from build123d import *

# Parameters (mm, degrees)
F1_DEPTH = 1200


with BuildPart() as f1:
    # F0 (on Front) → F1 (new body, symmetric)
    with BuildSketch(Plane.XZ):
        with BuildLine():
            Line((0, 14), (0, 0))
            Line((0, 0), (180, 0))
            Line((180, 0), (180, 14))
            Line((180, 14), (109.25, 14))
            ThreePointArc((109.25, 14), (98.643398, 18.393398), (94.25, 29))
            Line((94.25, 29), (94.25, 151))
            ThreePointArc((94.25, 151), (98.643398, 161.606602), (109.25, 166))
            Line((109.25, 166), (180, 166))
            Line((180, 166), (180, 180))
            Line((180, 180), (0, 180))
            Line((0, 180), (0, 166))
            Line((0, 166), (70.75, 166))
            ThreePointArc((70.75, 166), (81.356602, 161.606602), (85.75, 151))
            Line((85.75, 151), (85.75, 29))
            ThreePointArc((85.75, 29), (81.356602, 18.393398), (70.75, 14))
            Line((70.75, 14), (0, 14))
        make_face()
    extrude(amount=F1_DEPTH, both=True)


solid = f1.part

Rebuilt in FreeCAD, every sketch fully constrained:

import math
import FreeCAD as App
import Part
import Sketcher
from FreeCAD import Vector

doc = App.newDocument("Part")
body = doc.addObject("PartDesign::Body", "Body")

# Sketch on XZ plane
sketch1 = body.newObject("Sketcher::SketchObject", "Sketch")
sketch1.AttachmentSupport = (doc.getObject("XZ_Plane"), [""])
sketch1.MapMode = "FlatFace"
sketch1.addGeometry(Part.LineSegment(Vector(0, 14, 0), Vector(0, 0, 0)), False)
sketch1.addGeometry(Part.LineSegment(Vector(0, 0, 0), Vector(180, 0, 0)), False)
sketch1.addGeometry(Part.LineSegment(Vector(180, 0, 0), Vector(180, 14, 0)), False)
sketch1.addGeometry(Part.LineSegment(Vector(180, 14, 0), Vector(109, 14, 0)), False)
sketch1.addGeometry(Part.ArcOfCircle(Part.Circle(Vector(109, 29, 0), Vector(0, 0, 1), 15), math.radians(180), math.radians(270)), False)
sketch1.addGeometry(Part.LineSegment(Vector(94, 29, 0), Vector(94, 151, 0)), False)
sketch1.addGeometry(Part.ArcOfCircle(Part.Circle(Vector(109, 151, 0), Vector(0, 0, 1), 15), math.radians(90), math.radians(180)), False)
sketch1.addGeometry(Part.LineSegment(Vector(109, 166, 0), Vector(180, 166, 0)), False)
sketch1.addGeometry(Part.LineSegment(Vector(180, 166, 0), Vector(180, 180, 0)), False)
sketch1.addGeometry(Part.LineSegment(Vector(180, 180, 0), Vector(0, 180, 0)), False)
sketch1.addGeometry(Part.LineSegment(Vector(0, 180, 0), Vector(0, 166, 0)), False)
sketch1.addGeometry(Part.LineSegment(Vector(0, 166, 0), Vector(71, 166, 0)), False)
sketch1.addGeometry(Part.ArcOfCircle(Part.Circle(Vector(71, 151, 0), Vector(0, 0, 1), 15), math.radians(0), math.radians(90)), False)
sketch1.addGeometry(Part.LineSegment(Vector(86, 151, 0), Vector(86, 29, 0)), False)
sketch1.addGeometry(Part.ArcOfCircle(Part.Circle(Vector(71, 29, 0), Vector(0, 0, 1), 15), math.radians(-90), math.radians(0)), False)
sketch1.addGeometry(Part.LineSegment(Vector(71, 14, 0), Vector(0, 14, 0)), False)
sketch1.addConstraint(Sketcher.Constraint("Coincident", 0, 2, 1, 1))
sketch1.addConstraint(Sketcher.Constraint("Coincident", 1, 2, 2, 1))
sketch1.addConstraint(Sketcher.Constraint("Coincident", 2, 2, 3, 1))
sketch1.addConstraint(Sketcher.Constraint("Tangent", 3, 2, 4, 2))
sketch1.addConstraint(Sketcher.Constraint("Tangent", 4, 1, 5, 1))
sketch1.addConstraint(Sketcher.Constraint("Tangent", 5, 2, 6, 2))
sketch1.addConstraint(Sketcher.Constraint("Tangent", 6, 1, 7, 1))
sketch1.addConstraint(Sketcher.Constraint("Coincident", 7, 2, 8, 1))
sketch1.addConstraint(Sketcher.Constraint("Coincident", 8, 2, 9, 1))
sketch1.addConstraint(Sketcher.Constraint("Coincident", 9, 2, 10, 1))
sketch1.addConstraint(Sketcher.Constraint("Coincident", 10, 2, 11, 1))
sketch1.addConstraint(Sketcher.Constraint("Tangent", 11, 2, 12, 2))
sketch1.addConstraint(Sketcher.Constraint("Tangent", 12, 1, 13, 1))
sketch1.addConstraint(Sketcher.Constraint("Tangent", 13, 2, 14, 2))
sketch1.addConstraint(Sketcher.Constraint("Tangent", 14, 1, 15, 1))
sketch1.addConstraint(Sketcher.Constraint("Coincident", 15, 2, 0, 1))
sketch1.addConstraint(Sketcher.Constraint("Vertical", 0))
sketch1.addConstraint(Sketcher.Constraint("Horizontal", 1))
sketch1.addConstraint(Sketcher.Constraint("Vertical", 2))
sketch1.addConstraint(Sketcher.Constraint("Horizontal", 3))
sketch1.addConstraint(Sketcher.Constraint("Vertical", 5))
sketch1.addConstraint(Sketcher.Constraint("Horizontal", 7))
sketch1.addConstraint(Sketcher.Constraint("Vertical", 8))
sketch1.addConstraint(Sketcher.Constraint("Horizontal", 9))
sketch1.addConstraint(Sketcher.Constraint("Vertical", 10))
sketch1.addConstraint(Sketcher.Constraint("Horizontal", 11))
sketch1.addConstraint(Sketcher.Constraint("Vertical", 13))
sketch1.addConstraint(Sketcher.Constraint("Horizontal", 15))
sketch1.addConstraint(Sketcher.Constraint("Coincident", 0, 2, -1, 1))
sketch1.addConstraint(Sketcher.Constraint("Equal", 4, 6))
sketch1.addConstraint(Sketcher.Constraint("Equal", 6, 12))
sketch1.addConstraint(Sketcher.Constraint("Equal", 12, 14))
sketch1.addConstraint(Sketcher.Constraint("PointOnObject", 9, 2, -2))
sketch1.addConstraint(Sketcher.Constraint("Horizontal", 6, 3, 12, 3))
sketch1.addConstraint(Sketcher.Constraint("Horizontal", 4, 3, 14, 3))
sketch1.addConstraint(Sketcher.Constraint("Vertical", 2, 2, 7, 2))
sketch1.addConstraint(Sketcher.Constraint("Equal", 7, 11))
sketch1.addConstraint(Sketcher.Constraint("Equal", 2, 8))
sketch1.addConstraint(Sketcher.Constraint("Radius", 4, 14.999999))
sketch1.addConstraint(Sketcher.Constraint("DistanceX", 1, 1, 1, 2, 180.0))
sketch1.addConstraint(Sketcher.Constraint("DistanceY", 0, 2, 0, 1, 14.0))
sketch1.addConstraint(Sketcher.Constraint("DistanceY", 5, 1, 5, 2, 122.0))
sketch1.addConstraint(Sketcher.Constraint("DistanceX", 3, 2, 3, 1, 70.75))
pad1 = body.newObject("PartDesign::Pad", "Pad")
pad1.Profile = sketch1
pad1.Length = 2400
pad1.Midplane = True

doc.recompute()
